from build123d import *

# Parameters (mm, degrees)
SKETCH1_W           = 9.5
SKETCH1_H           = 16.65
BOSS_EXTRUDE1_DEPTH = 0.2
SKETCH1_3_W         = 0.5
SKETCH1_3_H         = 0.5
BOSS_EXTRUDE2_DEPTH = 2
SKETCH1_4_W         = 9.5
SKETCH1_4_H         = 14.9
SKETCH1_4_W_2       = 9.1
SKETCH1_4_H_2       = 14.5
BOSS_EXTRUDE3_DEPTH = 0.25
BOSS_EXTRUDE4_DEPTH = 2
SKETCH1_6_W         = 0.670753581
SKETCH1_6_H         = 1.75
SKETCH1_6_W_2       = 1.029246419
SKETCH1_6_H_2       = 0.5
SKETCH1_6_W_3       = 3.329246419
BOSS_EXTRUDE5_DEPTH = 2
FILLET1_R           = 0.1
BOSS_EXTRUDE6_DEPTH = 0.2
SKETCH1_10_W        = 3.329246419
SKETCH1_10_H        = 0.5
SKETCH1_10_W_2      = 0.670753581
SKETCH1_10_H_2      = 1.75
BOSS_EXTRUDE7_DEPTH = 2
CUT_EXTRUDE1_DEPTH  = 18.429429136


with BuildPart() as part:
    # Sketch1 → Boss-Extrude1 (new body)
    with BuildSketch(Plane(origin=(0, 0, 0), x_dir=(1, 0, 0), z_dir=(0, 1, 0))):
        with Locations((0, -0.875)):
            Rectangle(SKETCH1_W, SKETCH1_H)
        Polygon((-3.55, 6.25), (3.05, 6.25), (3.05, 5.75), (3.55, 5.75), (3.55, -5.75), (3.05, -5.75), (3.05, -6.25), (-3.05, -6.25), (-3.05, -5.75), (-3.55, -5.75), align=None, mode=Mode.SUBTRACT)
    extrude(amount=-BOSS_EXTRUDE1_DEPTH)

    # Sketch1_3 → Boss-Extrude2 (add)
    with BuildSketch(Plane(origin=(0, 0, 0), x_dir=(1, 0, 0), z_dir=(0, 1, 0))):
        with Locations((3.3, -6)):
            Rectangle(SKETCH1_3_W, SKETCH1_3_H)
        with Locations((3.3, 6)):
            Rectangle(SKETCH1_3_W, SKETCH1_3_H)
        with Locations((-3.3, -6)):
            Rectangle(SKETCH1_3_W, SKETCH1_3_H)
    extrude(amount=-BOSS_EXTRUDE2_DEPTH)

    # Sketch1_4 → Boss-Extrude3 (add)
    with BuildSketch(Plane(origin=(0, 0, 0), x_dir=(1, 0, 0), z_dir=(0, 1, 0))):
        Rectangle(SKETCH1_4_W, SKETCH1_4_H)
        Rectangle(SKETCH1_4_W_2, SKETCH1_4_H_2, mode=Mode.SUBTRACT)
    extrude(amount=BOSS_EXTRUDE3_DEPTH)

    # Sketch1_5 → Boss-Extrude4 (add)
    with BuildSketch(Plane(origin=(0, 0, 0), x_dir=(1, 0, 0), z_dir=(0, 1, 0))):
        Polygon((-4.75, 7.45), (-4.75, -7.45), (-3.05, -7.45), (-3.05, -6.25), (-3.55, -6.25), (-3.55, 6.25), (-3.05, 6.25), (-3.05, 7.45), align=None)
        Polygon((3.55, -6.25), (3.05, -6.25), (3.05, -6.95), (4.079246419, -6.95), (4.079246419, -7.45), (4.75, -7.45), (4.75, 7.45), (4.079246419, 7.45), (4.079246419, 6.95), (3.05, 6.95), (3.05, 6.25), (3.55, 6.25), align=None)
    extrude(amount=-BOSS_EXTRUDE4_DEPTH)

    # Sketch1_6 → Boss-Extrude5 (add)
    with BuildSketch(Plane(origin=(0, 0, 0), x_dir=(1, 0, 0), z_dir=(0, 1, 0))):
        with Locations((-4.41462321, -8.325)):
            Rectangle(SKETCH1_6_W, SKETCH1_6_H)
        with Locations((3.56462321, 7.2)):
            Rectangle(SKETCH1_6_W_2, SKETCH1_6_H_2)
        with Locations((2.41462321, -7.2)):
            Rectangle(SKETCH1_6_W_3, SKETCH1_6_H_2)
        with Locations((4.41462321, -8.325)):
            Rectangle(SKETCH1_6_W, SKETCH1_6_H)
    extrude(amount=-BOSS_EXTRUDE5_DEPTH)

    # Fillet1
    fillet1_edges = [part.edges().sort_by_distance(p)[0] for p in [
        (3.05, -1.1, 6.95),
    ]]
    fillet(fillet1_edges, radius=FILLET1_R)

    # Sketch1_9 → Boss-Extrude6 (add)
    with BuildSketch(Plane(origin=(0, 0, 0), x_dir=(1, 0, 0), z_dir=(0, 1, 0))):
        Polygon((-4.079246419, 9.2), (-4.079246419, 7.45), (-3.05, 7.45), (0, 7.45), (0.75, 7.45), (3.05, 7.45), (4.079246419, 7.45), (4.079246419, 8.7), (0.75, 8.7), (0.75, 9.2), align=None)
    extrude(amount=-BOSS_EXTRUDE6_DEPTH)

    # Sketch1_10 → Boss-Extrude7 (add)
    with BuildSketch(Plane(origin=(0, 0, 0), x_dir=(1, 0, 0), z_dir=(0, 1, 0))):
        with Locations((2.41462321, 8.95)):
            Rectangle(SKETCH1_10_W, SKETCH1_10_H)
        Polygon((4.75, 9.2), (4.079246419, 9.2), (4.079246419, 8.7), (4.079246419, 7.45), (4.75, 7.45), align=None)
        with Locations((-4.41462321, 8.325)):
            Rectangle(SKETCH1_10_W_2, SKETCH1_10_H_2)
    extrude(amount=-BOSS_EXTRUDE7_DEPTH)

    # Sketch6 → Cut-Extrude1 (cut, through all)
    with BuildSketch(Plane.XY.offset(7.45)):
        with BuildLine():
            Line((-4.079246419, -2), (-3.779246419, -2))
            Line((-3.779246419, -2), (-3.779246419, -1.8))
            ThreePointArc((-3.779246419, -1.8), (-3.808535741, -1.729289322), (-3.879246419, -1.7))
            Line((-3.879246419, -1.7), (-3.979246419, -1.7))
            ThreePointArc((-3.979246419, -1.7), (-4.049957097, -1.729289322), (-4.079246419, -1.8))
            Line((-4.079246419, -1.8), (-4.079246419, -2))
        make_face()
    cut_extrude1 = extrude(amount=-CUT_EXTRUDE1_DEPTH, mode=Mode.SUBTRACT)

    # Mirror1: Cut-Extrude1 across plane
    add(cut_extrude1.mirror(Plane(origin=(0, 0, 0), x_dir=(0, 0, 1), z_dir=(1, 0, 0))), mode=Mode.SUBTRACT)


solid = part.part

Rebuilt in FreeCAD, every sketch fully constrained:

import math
import FreeCAD as App
import Part
import Sketcher
from FreeCAD import Vector


def edges_at(feature, points):
    """Names of the edges that pass closest to the given points."""
    edges = feature.Shape.Edges
    near = lambda p: min(range(len(edges)), key=lambda i: edges[i].distToShape(Part.Vertex(*p))[0])
    return sorted({f"Edge{near(p) + 1}" for p in points})


def add_polygon(sketch, points):
    """Adds a closed chain of lines whose ends are joined by coincident constraints."""
    first, n = sketch.GeometryCount, len(points)
    for a, b in zip(points, points[1:] + points[:1]):
        sketch.addGeometry(Part.LineSegment(App.Vector(*a, 0), App.Vector(*b, 0)), False)
    for i in range(n):
        sketch.addConstraint(Sketcher.Constraint("Coincident", first + i, 2, first + (i + 1) % n, 1))

doc = App.newDocument("Part")
body = doc.addObject("PartDesign::Body", "Body")

# Sketch on XZ plane
sketch1 = doc.addObject("Sketcher::SketchObject", "Sketch")
body.addObject(sketch1)
sketch1.AttachmentSupport = (doc.XZ_Plane, [""])
sketch1.MapMode = "FlatFace"
add_polygon(sketch1, [(-4.8, -7.5), (-4.8, 9.2), (4.8, 9.2), (4.8, -7.5)])  # lines 0-3
add_polygon(sketch1, [(-3.5, 5.8), (-3.5, -6.2), (3, -6.2), (3, -5.8), (3.5, -5.8), (3.5, 5.8), (3, 5.8), (3, 6.2), (-3, 6.2), (-3, 5.8)])  # lines 4-13
sketch1.addConstraint(Sketcher.Constraint("Vertical", 0))
sketch1.addConstraint(Sketcher.Constraint("Horizontal", 1))
sketch1.addConstraint(Sketcher.Constraint("Vertical", 2))
sketch1.addConstraint(Sketcher.Constraint("Horizontal", 3))
sketch1.addConstraint(Sketcher.Constraint("Vertical", 4))
sketch1.addConstraint(Sketcher.Constraint("Horizontal", 5))
sketch1.addConstraint(Sketcher.Constraint("Vertical", 6))
sketch1.addConstraint(Sketcher.Constraint("Horizontal", 7))
sketch1.addConstraint(Sketcher.Constraint("Vertical", 8))
sketch1.addConstraint(Sketcher.Constraint("Horizontal", 9))
sketch1.addConstraint(Sketcher.Constraint("Vertical", 10))
sketch1.addConstraint(Sketcher.Constraint("Horizontal", 11))
sketch1.addConstraint(Sketcher.Constraint("Vertical", 12))
sketch1.addConstraint(Sketcher.Constraint("Horizontal", 13))
sketch1.addConstraint(Sketcher.Constraint("Symmetric", 5, 2, 11, 2, -1, 1))
sketch1.addConstraint(Sketcher.Constraint("Symmetric", 7, 2, 13, 2, -1, 1))
sketch1.addConstraint(Sketcher.Constraint("Symmetric", 9, 2, 12, 2, -2))
sketch1.addConstraint(Sketcher.Constraint("Equal", 13, 6))
sketch1.addConstraint(Sketcher.Constraint("DistanceY", 4, 2, 4, 1, 12.0))
sketch1.addConstraint(Sketcher.Constraint("DistanceX", 1, 1, 1, 2, 9.5))
sketch1.addConstraint(Sketcher.Constraint("DistanceX", 5, 1, 5, 2, 6.6))
sketch1.addConstraint(Sketcher.Constraint("DistanceX", 7, 1, 7, 2, 0.5))
sketch1.addConstraint(Sketcher.Constraint("DistanceY", 0, 1, 0, 2, 16.65))
sketch1.addConstraint(Sketcher.Constraint("DistanceY", -1, 1, 0, 2, 9.2))
sketch1.addConstraint(Sketcher.Constraint("DistanceX", 3, 2, 4, 2, 1.2))
pad1 = doc.addObject("PartDesign::Pad", "Pad")
body.addObject(pad1)
pad1.Profile = sketch1
pad1.Length = 0.2

# Sketch on XZ plane
sketch2 = doc.addObject("Sketcher::SketchObject", "Sketch001")
body.addObject(sketch2)
sketch2.AttachmentSupport = (doc.XZ_Plane, [""])
sketch2.MapMode = "FlatFace"
add_polygon(sketch2, [(3, 5.8), (3, 6.2), (3.5, 6.2), (3.5, 5.8)])  # lines 0-3
add_polygon(sketch2, [(3, -6.2), (3, -5.8), (3.5, -5.8), (3.5, -6.2)])  # lines 4-7
add_polygon(sketch2, [(-3.5, 5.8), (-3.5, 6.2), (-3, 6.2), (-3, 5.8)])  # lines 8-11
sketch2.addConstraint(Sketcher.Constraint("Vertical", 0))
sketch2.addConstraint(Sketcher.Constraint("Horizontal", 1))
sketch2.addConstraint(Sketcher.Constraint("Vertical", 2))
sketch2.addConstraint(Sketcher.Constraint("Horizontal", 3))
sketch2.addConstraint(Sketcher.Constraint("Vertical", 4))
sketch2.addConstraint(Sketcher.Constraint("Horizontal", 5))
sketch2.addConstraint(Sketcher.Constraint("Vertical", 6))
sketch2.addConstraint(Sketcher.Constraint("Horizontal", 7))
sketch2.addConstraint(Sketcher.Constraint("Vertical", 8))
sketch2.addConstraint(Sketcher.Constraint("Horizontal", 9))
sketch2.addConstraint(Sketcher.Constraint("Vertical", 10))
sketch2.addConstraint(Sketcher.Constraint("Horizontal", 11))
sketch2.addConstraint(Sketcher.Constraint("Symmetric", 6, 2, 8, 2, -1, 1))
sketch2.addConstraint(Sketcher.Constraint("Symmetric", 4, 2, 10, 2, -1, 1))
sketch2.addConstraint(Sketcher.Constraint("Symmetric", 1, 2, 8, 2, -2))
sketch2.addConstraint(Sketcher.Constraint("Symmetric", 3, 2, 10, 2, -2))
sketch2.addConstraint(Sketcher.Constraint("Equal", 11, 0))
sketch2.addConstraint(Sketcher.Constraint("DistanceX", 1, 1, 1, 2, 0.5))
sketch2.addConstraint(Sketcher.Constraint("DistanceY", 4, 2, 0, 2, 12.0))
sketch2.addConstraint(Sketcher.Constraint("DistanceX", 8, 2, 0, 2, 6.6))
pad2 = doc.addObject("PartDesign::Pad", "Pad001")
body.addObject(pad2)
pad2.Profile = sketch2
pad2.Length = 2

# Sketch on XZ plane
sketch3 = doc.addObject("Sketcher::SketchObject", "Sketch002")
body.addObject(sketch3)
sketch3.AttachmentSupport = (doc.XZ_Plane, [""])
sketch3.MapMode = "FlatFace"
add_polygon(sketch3, [(-5, -7), (-5, 7), (5, 7), (5, -7)])  # lines 0-3
add_polygon(sketch3, [(5, 7), (-5, 7), (-5, -7), (5, -7)])  # lines 4-7
sketch3.addConstraint(Sketcher.Constraint("Vertical", 0))
sketch3.addConstraint(Sketcher.Constraint("Horizontal", 1))
sketch3.addConstraint(Sketcher.Constraint("Vertical", 2))
sketch3.addConstraint(Sketcher.Constraint("Horizontal", 3))
sketch3.addConstraint(Sketcher.Constraint("Horizontal", 4))
sketch3.addConstraint(Sketcher.Constraint("Vertical", 5))
sketch3.addConstraint(Sketcher.Constraint("Horizontal", 6))
sketch3.addConstraint(Sketcher.Constraint("Vertical", 7))
sketch3.addConstraint(Sketcher.Constraint("Symmetric", 0, 2, 2, 2, -1, 1))
sketch3.addConstraint(Sketcher.Constraint("Symmetric", 4, 2, 6, 2, -1, 1))
sketch3.addConstraint(Sketcher.Constraint("DistanceX", 1, 1, 1, 2, 9.5))
sketch3.addConstraint(Sketcher.Constraint("DistanceX", 4, 2, 4, 1, 9.1))
sketch3.addConstraint(Sketcher.Constraint("DistanceY", 0, 1, 0, 2, 14.9))
sketch3.addConstraint(Sketcher.Constraint("DistanceY", 5, 2, 5, 1, 14.5))
pad3 = doc.addObject("PartDesign::Pad", "Pad002")
body.addObject(pad3)
pad3.Profile = sketch3
pad3.Length = 0.25
pad3.Reversed = True

# Sketch on XZ plane
sketch4 = doc.addObject("Sketcher::SketchObject", "Sketch003")
body.addObject(sketch4)
sketch4.AttachmentSupport = (doc.XZ_Plane, [""])
sketch4.MapMode = "FlatFace"
add_polygon(sketch4, [(-4.8, -7.5), (-4.8, 7.5), (-3, 7.5), (-3, 6.2), (-3.5, 6.2), (-3.5, -6.2), (-3, -6.2), (-3, -7.5)])  # lines 0-7
add_polygon(sketch4, [(3.5, 6.2), (3, 6.2), (3, 7), (4.1, 7), (4.1, 7.5), (4.8, 7.5), (4.8, -7.5), (4.1, -7.5), (4.1, -7), (3, -7), (3, -6.2), (3.5, -6.2)])  # lines 8-19
sketch4.addConstraint(Sketcher.Constraint("Vertical", 0))
sketch4.addConstraint(Sketcher.Constraint("Horizontal", 1))
sketch4.addConstraint(Sketcher.Constraint("Vertical", 2))
sketch4.addConstraint(Sketcher.Constraint("Horizontal", 3))
sketch4.addConstraint(Sketcher.Constraint("Vertical", 4))
sketch4.addConstraint(Sketcher.Constraint("Horizontal", 5))
sketch4.addConstraint(Sketcher.Constraint("Vertical", 6))
sketch4.addConstraint(Sketcher.Constraint("Horizontal", 7))
sketch4.addConstraint(Sketcher.Constraint("Horizontal", 8))
sketch4.addConstraint(Sketcher.Constraint("Vertical", 9))
sketch4.addConstraint(Sketcher.Constraint("Horizontal", 10))
sketch4.addConstraint(Sketcher.Constraint("Vertical", 11))
sketch4.addConstraint(Sketcher.Constraint("Horizontal", 12))
sketch4.addConstraint(Sketcher.Constraint("Vertical", 13))
sketch4.addConstraint(Sketcher.Constraint("Horizontal", 14))
sketch4.addConstraint(Sketcher.Constraint("Vertical", 15))
sketch4.addConstraint(Sketcher.Constraint("Horizontal", 16))
sketch4.addConstraint(Sketcher.Constraint("Vertical", 17))
sketch4.addConstraint(Sketcher.Constraint("Horizontal", 18))
sketch4.addConstraint(Sketcher.Constraint("Vertical", 19))
sketch4.addConstraint(Sketcher.Constraint("Symmetric", 5, 2, 8, 2, -1, 1))
sketch4.addConstraint(Sketcher.Constraint("Symmetric", 7, 2, 12, 2, -1, 1))
sketch4.addConstraint(Sketcher.Constraint("Symmetric", 2, 2, 17, 2, -1, 1))
sketch4.addConstraint(Sketcher.Constraint("Symmetric", 2, 2, 8, 2, -2))
sketch4.addConstraint(Sketcher.Constraint("Symmetric", 11, 2, 14, 2, -1))
sketch4.addConstraint(Sketcher.Constraint("Horizontal", 1, 2, 11, 2))
sketch4.addConstraint(Sketcher.Constraint("Equal", 5, 8))
sketch4.addConstraint(Sketcher.Constraint("Equal", 18, 11))
sketch4.addConstraint(Sketcher.Constraint("Equal", 11, 15))
sketch4.addConstraint(Sketcher.Constraint("DistanceX", 1, 1, 1, 2, 1.7))
sketch4.addConstraint(Sketcher.Constraint("DistanceX", 3, 2, 3, 1, 0.5))
sketch4.addConstraint(Sketcher.Constraint("DistanceY", 0, 1, 0, 2, 14.9))
sketch4.addConstraint(Sketcher.Constraint("DistanceY", 2, 2, 2, 1, 1.2))
sketch4.addConstraint(Sketcher.Constraint("DistanceX", 2, 2, 8, 2, 6.1))
sketch4.addConstraint(Sketcher.Constraint("DistanceX", 10, 1, 10, 2, 1.029246))
pad4 = doc.addObject("PartDesign::Pad", "Pad003")
body.addObject(pad4)
pad4.Profile = sketch4
pad4.Length = 2

# Sketch on XZ plane
sketch5 = doc.addObject("Sketcher::SketchObject", "Sketch004")
body.addObject(sketch5)
sketch5.AttachmentSupport = (doc.XZ_Plane, [""])
sketch5.MapMode = "FlatFace"
add_polygon(sketch5, [(-4.8, 7.5), (-4.8, 9.2), (-4.1, 9.2), (-4.1, 7.5)])  # lines 0-3
add_polygon(sketch5, [(3.1, -7.5), (3.1, -7), (4.1, -7), (4.1, -7.5)])  # lines 4-7
add_polygon(sketch5, [(0.8, 7), (0.8, 7.5), (4.1, 7.5), (4.1, 7)])  # lines 8-11
add_polygon(sketch5, [(4.1, 7.5), (4.1, 9.2), (4.8, 9.2), (4.8, 7.5)])  # lines 12-15
sketch5.addConstraint(Sketcher.Constraint("Vertical", 0))
sketch5.addConstraint(Sketcher.Constraint("Horizontal", 1))
sketch5.addConstraint(Sketcher.Constraint("Vertical", 2))
sketch5.addConstraint(Sketcher.Constraint("Horizontal", 3))
sketch5.addConstraint(Sketcher.Constraint("Vertical", 4))
sketch5.addConstraint(Sketcher.Constraint("Horizontal", 5))
sketch5.addConstraint(Sketcher.Constraint("Vertical", 6))
sketch5.addConstraint(Sketcher.Constraint("Horizontal", 7))
sketch5.addConstraint(Sketcher.Constraint("Vertical", 8))
sketch5.addConstraint(Sketcher.Constraint("Horizontal", 9))
sketch5.addConstraint(Sketcher.Constraint("Vertical", 10))
sketch5.addConstraint(Sketcher.Constraint("Horizontal", 11))
sketch5.addConstraint(Sketcher.Constraint("Vertical", 12))
sketch5.addConstraint(Sketcher.Constraint("Horizontal", 13))
sketch5.addConstraint(Sketcher.Constraint("Vertical", 14))
sketch5.addConstraint(Sketcher.Constraint("Horizontal", 15))
sketch5.addConstraint(Sketcher.Constraint("Coincident", 15, 2, 9, 2))
sketch5.addConstraint(Sketcher.Constraint("Symmetric", 2, 2, 6, 2, -1, 1))
sketch5.addConstraint(Sketcher.Constraint("Symmetric", 2, 2, 9, 2, -2))
sketch5.addConstraint(Sketcher.Constraint("Symmetric", 0, 2, 13, 2, -2))
sketch5.addConstraint(Sketcher.Constraint("Equal", 6, 8))
sketch5.addConstraint(Sketcher.Constraint("DistanceY", 4, 1, 4, 2, 0.5))
sketch5.addConstraint(Sketcher.Constraint("DistanceX", 8, 2, 13, 2, 4.0))
sketch5.addConstraint(Sketcher.Constraint("DistanceY", 0, 1, 0, 2, 1.75))
sketch5.addConstraint(Sketcher.Constraint("DistanceY", -1, 1, 0, 2, 9.2))
sketch5.addConstraint(Sketcher.Constraint("DistanceX", 3, 2, 4, 2, 7.8))
sketch5.addConstraint(Sketcher.Constraint("DistanceX", 3, 2, 8, 2, 5.5))
sketch5.addConstraint(Sketcher.Constraint("DistanceX", 1, 1, 1, 2, 0.670754))
pad5 = doc.addObject("PartDesign::Pad", "Pad004")
body.addObject(pad5)
pad5.Profile = sketch5
pad5.Length = 2
doc.recompute()

fillet = doc.addObject("PartDesign::Fillet", "Fillet")
body.addObject(fillet)
fillet.Base = (pad5, edges_at(pad5, [(3.05, -1.1, 6.95)]))
fillet.Radius = 0.1

# Sketch on XZ plane
sketch6 = doc.addObject("Sketcher::SketchObject", "Sketch005")
body.addObject(sketch6)
sketch6.AttachmentSupport = (doc.XZ_Plane, [""])
sketch6.MapMode = "FlatFace"
add_polygon(sketch6, [(-4.1, -9.2), (-4.1, -7.5), (4.1, -7.5), (4.1, -8.7), (0.8, -8.7), (0.8, -9.2)])  # lines 0-5
sketch6.addConstraint(Sketcher.Constraint("Vertical", 0))
sketch6.addConstraint(Sketcher.Constraint("Horizontal", 1))
sketch6.addConstraint(Sketcher.Constraint("Vertical", 2))
sketch6.addConstraint(Sketcher.Constraint("Horizontal", 3))
sketch6.addConstraint(Sketcher.Constraint("Vertical", 4))
sketch6.addConstraint(Sketcher.Constraint("Horizontal", 5))
sketch6.addConstraint(Sketcher.Constraint("DistanceY", 4, 2, 4, 1, 0.5))
sketch6.addConstraint(Sketcher.Constraint("DistanceY", 0, 1, 0, 2, 1.75))
sketch6.addConstraint(Sketcher.Constraint("DistanceY", 2, 2, -1, 1, 8.7))
sketch6.addConstraint(Sketcher.Constraint("DistanceX", -1, 1, 3, 2, 0.75))
sketch6.addConstraint(Sketcher.Constraint("DistanceX", 1, 1, 1, 2, 8.158493))
sketch6.addConstraint(Sketcher.Constraint("DistanceX", 3, 2, 3, 1, 3.329246))
pad6 = doc.addObject("PartDesign::Pad", "Pad005")
body.addObject(pad6)
pad6.Profile = sketch6
pad6.Length = 0.2

# Sketch on XZ plane
sketch7 = doc.addObject("Sketcher::SketchObject", "Sketch006")
body.addObject(sketch7)
sketch7.AttachmentSupport = (doc.XZ_Plane, [""])
sketch7.MapMode = "FlatFace"
add_polygon(sketch7, [(0.8, -9.2), (0.8, -8.7), (4.1, -8.7), (4.1, -7.5), (4.8, -7.5), (4.8, -9.2)])  # lines 0-5
add_polygon(sketch7, [(-4.8, -9.2), (-4.8, -7.5), (-4.1, -7.5), (-4.1, -9.2)])  # lines 6-9
sketch7.addConstraint(Sketcher.Constraint("Vertical", 0))
sketch7.addConstraint(Sketcher.Constraint("Horizontal", 1))
sketch7.addConstraint(Sketcher.Constraint("Vertical", 2))
sketch7.addConstraint(Sketcher.Constraint("Horizontal", 3))
sketch7.addConstraint(Sketcher.Constraint("Vertical", 4))
sketch7.addConstraint(Sketcher.Constraint("Horizontal", 5))
sketch7.addConstraint(Sketcher.Constraint("Vertical", 6))
sketch7.addConstraint(Sketcher.Constraint("Horizontal", 7))
sketch7.addConstraint(Sketcher.Constraint("Vertical", 8))
sketch7.addConstraint(Sketcher.Constraint("Horizontal", 9))
sketch7.addConstraint(Sketcher.Constraint("Symmetric", 3, 2, 6, 2, -2))
sketch7.addConstraint(Sketcher.Constraint("Horizontal", 5, 2, 8, 2))
sketch7.addConstraint(Sketcher.Constraint("Equal", 3, 7))
sketch7.addConstraint(Sketcher.Constraint("DistanceX", 5, 2, 5, 1, 4.0))
sketch7.addConstraint(Sketcher.Constraint("DistanceY", 0, 1, 0, 2, 0.5))
sketch7.addConstraint(Sketcher.Constraint("DistanceY", 2, 1, 2, 2, 1.25))
sketch7.addConstraint(Sketcher.Constraint("DistanceY", 0, 2, -1, 1, 8.7))
sketch7.addConstraint(Sketcher.Constraint("DistanceX", 6, 2, 0, 2, 5.5))
sketch7.addConstraint(Sketcher.Constraint("DistanceX", 1, 1, 1, 2, 3.329246))
pad7 = doc.addObject("PartDesign::Pad", "Pad006")
body.addObject(pad7)
pad7.Profile = sketch7
pad7.Length = 2

# Sketch on XY plane
sketch8 = doc.addObject("Sketcher::SketchObject", "Sketch007")
body.addObject(sketch8)
sketch8.AttachmentSupport = (doc.XY_Plane, [""])
sketch8.MapMode = "FlatFace"
sketch8.AttachmentOffset = App.Placement(Vector(0, 0, 7.45), App.Rotation())
sketch8.addGeometry(Part.LineSegment(Vector(-4.08, -2, 0), Vector(-3.78, -2, 0)), False)
sketch8.addGeometry(Part.LineSegment(Vector(-3.78, -2, 0), Vector(-3.78, -1.8, 0)), False)
sketch8.addGeometry(Part.ArcOfCircle(Part.Circle(Vector(-3.88, -1.8, 0), Vector(0, 0, 1), 0.1), math.radians(0), math.radians(90)), False)
sketch8.addGeometry(Part.LineSegment(Vector(-3.88, -1.7, 0), Vector(-3.98, -1.7, 0)), False)
sketch8.addGeometry(Part.ArcOfCircle(Part.Circle(Vector(-3.98, -1.8, 0), Vector(0, 0, 1), 0.1), math.radians(90), math.radians(180)), False)
sketch8.addGeometry(Part.LineSegment(Vector(-4.08, -1.8, 0), Vector(-4.08, -2, 0)), False)
sketch8.addConstraint(Sketcher.Constraint("Coincident", 0, 2, 1, 1))
sketch8.addConstraint(Sketcher.Constraint("Tangent", 1, 2, 2, 1))
sketch8.addConstraint(Sketcher.Constraint("Tangent", 2, 2, 3, 1))
sketch8.addConstraint(Sketcher.Constraint("Tangent", 3, 2, 4, 1))
sketch8.addConstraint(Sketcher.Constraint("Tangent", 4, 2, 5, 1))
sketch8.addConstraint(Sketcher.Constraint("Coincident", 5, 2, 0, 1))
sketch8.addConstraint(Sketcher.Constraint("Horizontal", 0))
sketch8.addConstraint(Sketcher.Constraint("Vertical", 1))
sketch8.addConstraint(Sketcher.Constraint("Horizontal", 3))
sketch8.addConstraint(Sketcher.Constraint("Vertical", 5))
sketch8.addConstraint(Sketcher.Constraint("Equal", 2, 4))
sketch8.addConstraint(Sketcher.Constraint("Radius", 2, 0.1))
sketch8.addConstraint(Sketcher.Constraint("DistanceX", 0, 1, 0, 2, 0.3))
sketch8.addConstraint(Sketcher.Constraint("DistanceY", 1, 1, 1, 2, 0.2))
sketch8.addConstraint(Sketcher.Constraint("DistanceY", 0, 2, -1, 1, 2.0))
sketch8.addConstraint(Sketcher.Constraint("DistanceX", 2, 3, -1, 1, 3.879246))
pocket1 = doc.addObject("PartDesign::Pocket", "Pocket")
body.addObject(pocket1)
pocket1.Profile = sketch8
pocket1.Type = "ThroughAll"
doc.recompute()

mirrored = doc.addObject("PartDesign::Mirrored", "Mirrored")
body.addObject(mirrored)
mirrored.Originals = [pocket1]
mirrored.MirrorPlane = (doc.YZ_Plane, [""])
body.Tip = mirrored

doc.recompute()
